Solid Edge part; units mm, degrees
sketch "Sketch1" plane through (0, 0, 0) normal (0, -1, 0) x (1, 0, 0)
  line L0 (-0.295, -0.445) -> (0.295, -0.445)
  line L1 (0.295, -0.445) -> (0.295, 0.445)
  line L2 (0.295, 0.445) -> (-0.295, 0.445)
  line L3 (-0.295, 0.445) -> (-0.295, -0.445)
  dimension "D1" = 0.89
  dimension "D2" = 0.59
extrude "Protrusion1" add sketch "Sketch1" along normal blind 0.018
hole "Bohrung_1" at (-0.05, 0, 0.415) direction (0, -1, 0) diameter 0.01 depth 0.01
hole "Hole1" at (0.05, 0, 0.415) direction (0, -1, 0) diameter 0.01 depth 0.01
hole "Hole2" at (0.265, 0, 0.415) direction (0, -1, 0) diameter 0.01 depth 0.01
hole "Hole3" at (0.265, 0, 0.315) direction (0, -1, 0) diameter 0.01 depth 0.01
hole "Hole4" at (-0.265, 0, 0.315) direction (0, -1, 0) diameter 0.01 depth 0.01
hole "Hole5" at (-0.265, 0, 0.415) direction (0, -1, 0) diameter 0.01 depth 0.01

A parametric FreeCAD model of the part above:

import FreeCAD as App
import Part
import Sketcher

V = App.Vector
Q = App.Units.Quantity


def add_polygon(sketch, points):
    """Adds a closed chain of lines whose ends are joined by coincident constraints."""
    first, n = sketch.GeometryCount, len(points)
    for a, b in zip(points, points[1:] + points[:1]):
        sketch.addGeometry(Part.LineSegment(App.Vector(*a, 0), App.Vector(*b, 0)), False)
    for i in range(n):
        sketch.addConstraint(Sketcher.Constraint("Coincident", first + i, 2, first + (i + 1) % n, 1))

doc = App.newDocument("Part")
body = doc.addObject("PartDesign::Body", "Body")

# Sketch on XZ plane
sketch1 = body.newObject("Sketcher::SketchObject", "Sketch")
sketch1.AttachmentSupport = (doc.getObject("XZ_Plane"), [""])
sketch1.MapMode = "FlatFace"
add_polygon(sketch1, [(-0.3, 0.4), (-0.3, -0.4), (0.3, -0.4), (0.3, 0.4)])  # lines 0-3
sketch1.addConstraint(Sketcher.Constraint("Vertical", 0))
sketch1.addConstraint(Sketcher.Constraint("Horizontal", 1))
sketch1.addConstraint(Sketcher.Constraint("Vertical", 2))
sketch1.addConstraint(Sketcher.Constraint("Horizontal", 3))
sketch1.addConstraint(Sketcher.Constraint("Symmetric", 0, 2, 2, 2, -1, 1))
sketch1.addConstraint(Sketcher.Constraint("DistanceX", 0, 2, -1, 1, Q("0.295 mm")))
sketch1.addConstraint(Sketcher.Constraint("DistanceY", 0, 2, 0, 1, Q("0.89 mm")))
pad1 = body.newObject("PartDesign::Pad", "Pad")
pad1.Profile = sketch1
pad1.Length = 0.018

# Sketch on XZ plane
sketch2 = body.newObject("Sketcher::SketchObject", "Sketch001")
sketch2.AttachmentSupport = (doc.getObject("XZ_Plane"), [""])
sketch2.MapMode = "FlatFace"
sketch2.addGeometry(Part.Circle(V(-0.05, 0.415, 0), V(0, 0, 1), 0.005), False)
sketch2.addConstraint(Sketcher.Constraint("Diameter", 0, Q("0.01 mm")))
sketch2.addConstraint(Sketcher.Constraint("DistanceX", 0, 3, -1, 1, Q("0.05 mm")))
sketch2.addConstraint(Sketcher.Constraint("DistanceY", -1, 1, 0, 3, Q("0.415 mm")))
doc.recompute()
hole = body.newObject("PartDesign::Hole", "Hole")
hole.Profile = sketch2
hole.ThreadType = "None"
hole.Diameter = 0.01
hole.DepthType = "Dimension"
hole.Depth = 0.01
hole.DrillPoint = "Flat"
hole.Reversed = True

# Sketch on XZ plane
sketch3 = body.newObject("Sketcher::SketchObject", "Sketch002")
sketch3.AttachmentSupport = (doc.getObject("XZ_Plane"), [""])
sketch3.MapMode = "FlatFace"
sketch3.addGeometry(Part.Circle(V(0.05, 0.415, 0), V(0, 0, 1), 0.005), False)
sketch3.addConstraint(Sketcher.Constraint("Diameter", 0, Q("0.01 mm")))
sketch3.addConstraint(Sketcher.Constraint("DistanceX", -1, 1, 0, 3, Q("0.05 mm")))
sketch3.addConstraint(Sketcher.Constraint("DistanceY", -1, 1, 0, 3, Q("0.415 mm")))
doc.recompute()
hole2 = body.newObject("PartDesign::Hole", "Hole001")
hole2.Profile = sketch3
hole2.ThreadType = "None"
hole2.Diameter = 0.01
hole2.DepthType = "Dimension"
hole2.Depth = 0.01
hole2.DrillPoint = "Flat"
hole2.Reversed = True

# Sketch on XZ plane
sketch4 = body.newObject("Sketcher::SketchObject", "Sketch003")
sketch4.AttachmentSupport = (doc.getObject("XZ_Plane"), [""])
sketch4.MapMode = "FlatFace"
sketch4.addGeometry(Part.Circle(V(0.265, 0.415, 0), V(0, 0, 1), 0.005), False)
sketch4.addConstraint(Sketcher.Constraint("Diameter", 0, Q("0.01 mm")))
sketch4.addConstraint(Sketcher.Constraint("DistanceX", -1, 1, 0, 3, Q("0.265 mm")))
sketch4.addConstraint(Sketcher.Constraint("DistanceY", -1, 1, 0, 3, Q("0.415 mm")))
doc.recompute()
hole3 = body.newObject("PartDesign::Hole", "Hole002")
hole3.Profile = sketch4
hole3.ThreadType = "None"
hole3.Diameter = 0.01
hole3.DepthType = "Dimension"
hole3.Depth = 0.01
hole3.DrillPoint = "Flat"
hole3.Reversed = True

# Sketch on XZ plane
sketch5 = body.newObject("Sketcher::SketchObject", "Sketch004")
sketch5.AttachmentSupport = (doc.getObject("XZ_Plane"), [""])
sketch5.MapMode = "FlatFace"
sketch5.addGeometry(Part.Circle(V(0.265, 0.315, 0), V(0, 0, 1), 0.005), False)
sketch5.addConstraint(Sketcher.Constraint("Diameter", 0, Q("0.01 mm")))
sketch5.addConstraint(Sketcher.Constraint("DistanceX", -1, 1, 0, 3, Q("0.265 mm")))
sketch5.addConstraint(Sketcher.Constraint("DistanceY", -1, 1, 0, 3, Q("0.315 mm")))
doc.recompute()
hole4 = body.newObject("PartDesign::Hole", "Hole003")
hole4.Profile = sketch5
hole4.ThreadType = "None"
hole4.Diameter = 0.01
hole4.DepthType = "Dimension"
hole4.Depth = 0.01
hole4.DrillPoint = "Flat"
hole4.Reversed = True

# Sketch on XZ plane
sketch6 = body.newObject("Sketcher::SketchObject", "Sketch005")
sketch6.AttachmentSupport = (doc.getObject("XZ_Plane"), [""])
sketch6.MapMode = "FlatFace"
sketch6.addGeometry(Part.Circle(V(-0.265, 0.315, 0), V(0, 0, 1), 0.005), False)
sketch6.addConstraint(Sketcher.Constraint("Diameter", 0, Q("0.01 mm")))
sketch6.addConstraint(Sketcher.Constraint("DistanceX", 0, 3, -1, 1, Q("0.265 mm")))
sketch6.addConstraint(Sketcher.Constraint("DistanceY", -1, 1, 0, 3, Q("0.315 mm")))
doc.recompute()
hole5 = body.newObject("PartDesign::Hole", "Hole004")
hole5.Profile = sketch6
hole5.ThreadType = "None"
hole5.Diameter = 0.01
hole5.DepthType = "Dimension"
hole5.Depth = 0.01
hole5.DrillPoint = "Flat"
hole5.Reversed = True

# Sketch on XZ plane
sketch7 = body.newObject("Sketcher::SketchObject", "Sketch006")
sketch7.AttachmentSupport = (doc.getObject("XZ_Plane"), [""])
sketch7.MapMode = "FlatFace"
sketch7.addGeometry(Part.Circle(V(-0.265, 0.415, 0), V(0, 0, 1), 0.005), False)
sketch7.addConstraint(Sketcher.Constraint("Diameter", 0, Q("0.01 mm")))
sketch7.addConstraint(Sketcher.Constraint("DistanceX", 0, 3, -1, 1, Q("0.265 mm")))
sketch7.addConstraint(Sketcher.Constraint("DistanceY", -1, 1, 0, 3, Q("0.415 mm")))
doc.recompute()
hole6 = body.newObject("PartDesign::Hole", "Hole005")
hole6.Profile = sketch7
hole6.ThreadType = "None"
hole6.Diameter = 0.01
hole6.DepthType = "Dimension"
hole6.Depth = 0.01
hole6.DrillPoint = "Flat"
hole6.Reversed = True

doc.recompute()
